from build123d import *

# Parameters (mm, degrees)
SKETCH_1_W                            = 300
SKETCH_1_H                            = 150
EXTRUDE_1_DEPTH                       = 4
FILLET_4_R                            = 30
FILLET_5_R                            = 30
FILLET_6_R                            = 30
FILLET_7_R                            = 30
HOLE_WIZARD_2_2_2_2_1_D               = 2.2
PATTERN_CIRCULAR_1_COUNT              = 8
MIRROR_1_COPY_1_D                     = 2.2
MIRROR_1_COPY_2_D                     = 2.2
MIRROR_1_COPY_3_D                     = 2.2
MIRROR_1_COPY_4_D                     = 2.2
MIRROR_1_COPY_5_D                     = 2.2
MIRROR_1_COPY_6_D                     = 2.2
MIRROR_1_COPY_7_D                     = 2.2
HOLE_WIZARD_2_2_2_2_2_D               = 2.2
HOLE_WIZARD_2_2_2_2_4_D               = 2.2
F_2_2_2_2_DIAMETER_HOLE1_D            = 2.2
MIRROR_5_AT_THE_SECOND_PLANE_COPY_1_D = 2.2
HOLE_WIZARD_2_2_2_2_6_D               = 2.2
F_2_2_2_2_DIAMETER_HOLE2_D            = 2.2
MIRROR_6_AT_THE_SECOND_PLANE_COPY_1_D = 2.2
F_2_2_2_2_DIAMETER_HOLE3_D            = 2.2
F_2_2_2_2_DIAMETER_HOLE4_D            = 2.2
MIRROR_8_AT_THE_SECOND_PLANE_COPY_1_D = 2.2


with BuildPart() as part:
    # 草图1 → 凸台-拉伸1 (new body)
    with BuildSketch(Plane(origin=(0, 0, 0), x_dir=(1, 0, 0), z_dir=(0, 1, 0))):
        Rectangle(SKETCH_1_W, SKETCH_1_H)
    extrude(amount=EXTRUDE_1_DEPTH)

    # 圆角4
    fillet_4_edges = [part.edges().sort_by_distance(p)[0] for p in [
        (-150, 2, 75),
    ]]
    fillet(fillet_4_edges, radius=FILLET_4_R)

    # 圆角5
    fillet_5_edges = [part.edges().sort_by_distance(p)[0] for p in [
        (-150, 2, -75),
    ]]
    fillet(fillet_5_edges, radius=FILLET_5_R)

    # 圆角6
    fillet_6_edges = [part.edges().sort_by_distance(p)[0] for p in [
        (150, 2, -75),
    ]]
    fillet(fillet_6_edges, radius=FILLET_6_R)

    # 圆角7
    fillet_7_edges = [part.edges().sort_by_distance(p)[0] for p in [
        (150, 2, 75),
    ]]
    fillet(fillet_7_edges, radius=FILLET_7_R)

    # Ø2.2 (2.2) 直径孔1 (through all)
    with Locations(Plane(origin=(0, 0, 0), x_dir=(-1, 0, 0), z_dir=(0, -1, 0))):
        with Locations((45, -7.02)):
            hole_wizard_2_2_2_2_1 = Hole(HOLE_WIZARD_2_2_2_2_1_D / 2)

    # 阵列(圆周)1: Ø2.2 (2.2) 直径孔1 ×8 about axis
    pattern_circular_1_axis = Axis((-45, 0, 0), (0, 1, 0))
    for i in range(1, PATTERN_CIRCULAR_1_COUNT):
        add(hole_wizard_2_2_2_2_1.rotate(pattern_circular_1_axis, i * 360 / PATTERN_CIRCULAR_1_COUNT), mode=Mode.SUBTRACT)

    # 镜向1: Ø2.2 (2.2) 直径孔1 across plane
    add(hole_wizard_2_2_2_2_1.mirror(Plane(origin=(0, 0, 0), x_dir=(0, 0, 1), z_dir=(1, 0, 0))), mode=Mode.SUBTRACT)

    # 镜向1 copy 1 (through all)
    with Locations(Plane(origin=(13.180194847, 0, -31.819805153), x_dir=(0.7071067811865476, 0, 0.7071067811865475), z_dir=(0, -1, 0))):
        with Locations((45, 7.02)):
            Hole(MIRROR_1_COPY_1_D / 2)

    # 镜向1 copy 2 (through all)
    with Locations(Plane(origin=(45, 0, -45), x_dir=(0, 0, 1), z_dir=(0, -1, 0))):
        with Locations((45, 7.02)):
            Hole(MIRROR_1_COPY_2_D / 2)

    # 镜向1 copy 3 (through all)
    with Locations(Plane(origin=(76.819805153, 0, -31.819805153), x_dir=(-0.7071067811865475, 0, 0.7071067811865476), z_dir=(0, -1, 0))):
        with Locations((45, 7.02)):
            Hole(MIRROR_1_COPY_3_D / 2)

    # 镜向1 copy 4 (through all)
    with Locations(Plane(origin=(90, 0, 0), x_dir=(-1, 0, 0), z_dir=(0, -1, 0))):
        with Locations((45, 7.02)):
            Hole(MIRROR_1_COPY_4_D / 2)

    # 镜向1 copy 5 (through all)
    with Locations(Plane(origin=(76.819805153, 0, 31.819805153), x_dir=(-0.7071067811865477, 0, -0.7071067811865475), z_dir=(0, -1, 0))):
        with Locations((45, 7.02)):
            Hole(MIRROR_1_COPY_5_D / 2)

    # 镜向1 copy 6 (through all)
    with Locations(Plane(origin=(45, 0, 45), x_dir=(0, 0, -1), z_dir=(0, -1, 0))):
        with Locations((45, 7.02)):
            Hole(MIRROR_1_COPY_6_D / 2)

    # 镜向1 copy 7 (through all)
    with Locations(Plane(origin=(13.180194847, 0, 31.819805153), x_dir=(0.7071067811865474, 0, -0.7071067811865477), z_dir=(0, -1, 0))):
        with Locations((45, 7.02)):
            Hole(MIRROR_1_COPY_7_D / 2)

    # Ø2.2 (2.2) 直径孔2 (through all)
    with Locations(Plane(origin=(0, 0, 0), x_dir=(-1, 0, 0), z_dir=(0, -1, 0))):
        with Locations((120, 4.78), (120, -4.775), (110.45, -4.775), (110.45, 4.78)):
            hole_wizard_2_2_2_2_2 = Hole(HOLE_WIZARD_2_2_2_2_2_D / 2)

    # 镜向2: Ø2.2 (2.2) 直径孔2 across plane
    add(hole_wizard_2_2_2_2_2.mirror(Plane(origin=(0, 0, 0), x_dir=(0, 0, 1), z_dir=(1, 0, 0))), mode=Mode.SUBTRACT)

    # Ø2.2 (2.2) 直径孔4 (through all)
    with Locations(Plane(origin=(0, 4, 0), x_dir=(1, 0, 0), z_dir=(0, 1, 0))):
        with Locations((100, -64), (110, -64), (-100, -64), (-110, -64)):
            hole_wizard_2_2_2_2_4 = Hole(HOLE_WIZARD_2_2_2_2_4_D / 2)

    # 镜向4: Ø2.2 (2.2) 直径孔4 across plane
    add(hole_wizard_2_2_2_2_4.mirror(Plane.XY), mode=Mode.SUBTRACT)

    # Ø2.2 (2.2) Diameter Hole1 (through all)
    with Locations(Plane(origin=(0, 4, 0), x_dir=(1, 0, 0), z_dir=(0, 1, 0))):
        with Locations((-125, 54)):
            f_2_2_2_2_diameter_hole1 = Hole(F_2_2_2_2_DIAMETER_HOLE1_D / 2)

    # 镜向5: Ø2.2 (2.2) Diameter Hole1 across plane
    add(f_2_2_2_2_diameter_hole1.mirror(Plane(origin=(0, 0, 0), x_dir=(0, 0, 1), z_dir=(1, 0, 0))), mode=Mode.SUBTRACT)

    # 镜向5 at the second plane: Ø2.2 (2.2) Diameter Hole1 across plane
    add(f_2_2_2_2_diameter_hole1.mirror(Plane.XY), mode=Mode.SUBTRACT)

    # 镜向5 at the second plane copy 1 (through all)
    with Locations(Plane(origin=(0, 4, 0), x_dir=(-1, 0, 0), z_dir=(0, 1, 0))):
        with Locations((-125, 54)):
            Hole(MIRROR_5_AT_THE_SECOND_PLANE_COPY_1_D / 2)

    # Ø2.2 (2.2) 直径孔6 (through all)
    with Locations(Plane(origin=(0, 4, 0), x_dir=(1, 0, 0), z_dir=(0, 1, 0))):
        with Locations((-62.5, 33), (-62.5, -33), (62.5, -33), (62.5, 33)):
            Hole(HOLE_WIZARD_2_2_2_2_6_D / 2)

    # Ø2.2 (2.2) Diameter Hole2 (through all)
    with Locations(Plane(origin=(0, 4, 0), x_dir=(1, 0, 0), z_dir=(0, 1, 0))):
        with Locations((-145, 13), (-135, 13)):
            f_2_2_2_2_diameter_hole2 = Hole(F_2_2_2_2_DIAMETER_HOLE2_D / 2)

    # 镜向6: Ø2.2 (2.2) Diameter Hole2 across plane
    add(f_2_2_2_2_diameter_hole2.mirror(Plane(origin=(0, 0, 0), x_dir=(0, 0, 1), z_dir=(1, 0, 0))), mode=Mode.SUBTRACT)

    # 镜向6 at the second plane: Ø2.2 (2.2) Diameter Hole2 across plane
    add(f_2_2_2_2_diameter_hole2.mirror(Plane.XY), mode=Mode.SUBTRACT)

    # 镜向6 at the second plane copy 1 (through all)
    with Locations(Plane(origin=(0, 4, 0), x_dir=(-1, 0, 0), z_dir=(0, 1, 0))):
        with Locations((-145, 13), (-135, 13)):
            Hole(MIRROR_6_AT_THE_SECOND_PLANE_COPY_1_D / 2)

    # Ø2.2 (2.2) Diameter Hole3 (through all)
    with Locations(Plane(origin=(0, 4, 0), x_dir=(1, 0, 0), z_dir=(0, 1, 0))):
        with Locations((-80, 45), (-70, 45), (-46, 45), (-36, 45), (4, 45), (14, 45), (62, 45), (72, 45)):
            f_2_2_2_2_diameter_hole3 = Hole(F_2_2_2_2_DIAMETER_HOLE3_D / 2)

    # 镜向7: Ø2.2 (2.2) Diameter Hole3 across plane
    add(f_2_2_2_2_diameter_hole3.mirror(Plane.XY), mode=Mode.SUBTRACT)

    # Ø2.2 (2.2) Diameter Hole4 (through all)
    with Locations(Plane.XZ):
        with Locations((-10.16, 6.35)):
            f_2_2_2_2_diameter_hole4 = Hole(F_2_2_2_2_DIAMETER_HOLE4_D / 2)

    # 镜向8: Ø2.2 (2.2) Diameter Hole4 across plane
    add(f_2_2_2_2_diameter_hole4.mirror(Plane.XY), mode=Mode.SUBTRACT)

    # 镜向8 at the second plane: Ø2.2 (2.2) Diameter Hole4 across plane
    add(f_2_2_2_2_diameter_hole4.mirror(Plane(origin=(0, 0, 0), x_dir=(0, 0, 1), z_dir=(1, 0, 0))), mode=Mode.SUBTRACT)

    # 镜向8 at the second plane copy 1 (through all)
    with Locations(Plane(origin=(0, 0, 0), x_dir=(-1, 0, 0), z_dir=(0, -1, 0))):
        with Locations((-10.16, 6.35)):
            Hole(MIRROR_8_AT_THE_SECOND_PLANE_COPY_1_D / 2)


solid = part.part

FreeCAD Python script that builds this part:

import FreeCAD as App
import Part
import Sketcher
Q = App.Units.Quantity


def edges_at(feature, points):
    """Names of the edges that pass closest to the given points."""
    edges = feature.Shape.Edges
    near = lambda p: min(range(len(edges)), key=lambda i: edges[i].distToShape(Part.Vertex(*p))[0])
    return sorted({f"Edge{near(p) + 1}" for p in points})

doc = App.newDocument("Part")
body = doc.addObject("PartDesign::Body", "Body")

# Sketch on XZ plane
sketch1 = body.newObject("Sketcher::SketchObject", "Sketch")
sketch1.AttachmentSupport = (doc.getObject("XZ_Plane"), [""])
sketch1.MapMode = "FlatFace"
sketch1.addGeometry([
    Part.LineSegment(App.Vector(-150, -75, 0), App.Vector(-150, 75, 0)),
    Part.LineSegment(App.Vector(-150, 75, 0), App.Vector(150, 75, 0)),
    Part.LineSegment(App.Vector(150, 75, 0), App.Vector(150, -75, 0)),
    Part.LineSegment(App.Vector(150, -75, 0), App.Vector(-150, -75, 0)),
], False)
sketch1.addConstraint([
    Sketcher.Constraint("Coincident", 0, 2, 1, 1),
    Sketcher.Constraint("Coincident", 1, 2, 2, 1),
    Sketcher.Constraint("Coincident", 2, 2, 3, 1),
    Sketcher.Constraint("Coincident", 3, 2, 0, 1),
    Sketcher.Constraint("Vertical", 0),
    Sketcher.Constraint("Horizontal", 1),
    Sketcher.Constraint("Vertical", 2),
    Sketcher.Constraint("Horizontal", 3),
    Sketcher.Constraint("Symmetric", 0, 2, 2, 2, -1, 1),
    Sketcher.Constraint("DistanceX", 1, 1, 1, 2, Q("300 mm")),
    Sketcher.Constraint("DistanceY", 0, 1, 0, 2, Q("150 mm")),
])
pad1 = body.newObject("PartDesign::Pad", "Pad")
pad1.Profile = sketch1
pad1.Length = 4
pad1.Reversed = True
doc.recompute()

fillet = body.newObject("PartDesign::Fillet", "Fillet")
fillet.Base = (pad1, edges_at(pad1, [(-150, 2, 75)]))
fillet.Radius = 30
doc.recompute()

fillet2 = body.newObject("PartDesign::Fillet", "Fillet001")
fillet2.Base = (fillet, edges_at(fillet, [(-150, 2, -75)]))
fillet2.Radius = 30
doc.recompute()

fillet3 = body.newObject("PartDesign::Fillet", "Fillet002")
fillet3.Base = (fillet2, edges_at(fillet2, [(150, 2, -75)]))
fillet3.Radius = 30
doc.recompute()

fillet4 = body.newObject("PartDesign::Fillet", "Fillet003")
fillet4.Base = (fillet3, edges_at(fillet3, [(150, 2, 75)]))
fillet4.Radius = 30

# Sketch on XZ plane
sketch2 = body.newObject("Sketcher::SketchObject", "Sketch001")
sketch2.AttachmentSupport = (doc.getObject("XZ_Plane"), [""])
sketch2.MapMode = "FlatFace"
sketch2.addGeometry(Part.Circle(App.Vector(-45, 7, 0), App.Vector(0, 0, 1), 1.1), False)
sketch2.addConstraint([
    Sketcher.Constraint("Diameter", 0, Q("2.2 mm")),
    Sketcher.Constraint("DistanceX", 0, 3, -1, 1, Q("45 mm")),
    Sketcher.Constraint("DistanceY", -1, 1, 0, 3, Q("7.02 mm")),
])
doc.recompute()
hole = body.newObject("PartDesign::Hole", "Hole")
hole.Profile = sketch2
hole.ThreadType = "None"
hole.Diameter = 2.2
hole.DepthType = "ThroughAll"
doc.recompute()

datumline = body.newObject("PartDesign::Line", "DatumLine")
datumline.Placement = App.Placement(App.Vector(-45, 0, 0), App.Rotation(App.Vector(0, 0, 1), App.Vector(0, 1, 0)))
polarpattern = body.newObject("PartDesign::PolarPattern", "PolarPattern")
polarpattern.Originals = [hole]
polarpattern.Axis = (datumline, [""])
polarpattern.Angle = 360
polarpattern.Occurrences = 8
body.Tip = polarpattern
doc.recompute()

mirrored = body.newObject("PartDesign::Mirrored", "Mirrored")
mirrored.Originals = [hole]
mirrored.MirrorPlane = (doc.getObject("YZ_Plane"), [""])
body.Tip = mirrored

# Sketch on XZ plane
sketch3 = body.newObject("Sketcher::SketchObject", "Sketch002")
sketch3.AttachmentSupport = (doc.getObject("XZ_Plane"), [""])
sketch3.MapMode = "FlatFace"
sketch3.addGeometry(Part.Circle(App.Vector(40, 5, 0), App.Vector(0, 0, 1), 1.1), False)
sketch3.addConstraint([
    Sketcher.Constraint("Diameter", 0, Q("2.2 mm")),
    Sketcher.Constraint("DistanceX", -1, 1, 0, 3, Q("40.03611 mm")),
    Sketcher.Constraint("DistanceY", -1, 1, 0, 3, Q("4.96389 mm")),
])
doc.recompute()
hole2 = body.newObject("PartDesign::Hole", "Hole001")
hole2.Profile = sketch3
hole2.ThreadType = "None"
hole2.Diameter = 2.2
hole2.DepthType = "ThroughAll"

# Sketch on XZ plane
sketch4 = body.newObject("Sketcher::SketchObject", "Sketch003")
sketch4.AttachmentSupport = (doc.getObject("XZ_Plane"), [""])
sketch4.MapMode = "FlatFace"
sketch4.addGeometry(Part.Circle(App.Vector(38, 0, 0), App.Vector(0, 0, 1), 1.1), False)
sketch4.addConstraint([
    Sketcher.Constraint("PointOnObject", 0, 3, -1),
    Sketcher.Constraint("Diameter", 0, Q("2.2 mm")),
    Sketcher.Constraint("DistanceX", -1, 1, 0, 3, Q("37.98 mm")),
])
doc.recompute()
hole3 = body.newObject("PartDesign::Hole", "Hole002")
hole3.Profile = sketch4
hole3.ThreadType = "None"
hole3.Diameter = 2.2
hole3.DepthType = "ThroughAll"

# Sketch on XZ plane
sketch5 = body.newObject("Sketcher::SketchObject", "Sketch004")
sketch5.AttachmentSupport = (doc.getObject("XZ_Plane"), [""])
sketch5.MapMode = "FlatFace"
sketch5.addGeometry(Part.Circle(App.Vector(40, -5, 0), App.Vector(0, 0, 1), 1.1), False)
sketch5.addConstraint([
    Sketcher.Constraint("Diameter", 0, Q("2.2 mm")),
    Sketcher.Constraint("DistanceX", -1, 1, 0, 3, Q("40.03611 mm")),
    Sketcher.Constraint("DistanceY", 0, 3, -1, 1, Q("4.96389 mm")),
])
doc.recompute()
hole4 = body.newObject("PartDesign::Hole", "Hole003")
hole4.Profile = sketch5
hole4.ThreadType = "None"
hole4.Diameter = 2.2
hole4.DepthType = "ThroughAll"

# Sketch on XZ plane
sketch6 = body.newObject("Sketcher::SketchObject", "Sketch005")
sketch6.AttachmentSupport = (doc.getObject("XZ_Plane"), [""])
sketch6.MapMode = "FlatFace"
sketch6.addGeometry(Part.Circle(App.Vector(45, -7, 0), App.Vector(0, 0, 1), 1.1), False)
sketch6.addConstraint([
    Sketcher.Constraint("Diameter", 0, Q("2.2 mm")),
    Sketcher.Constraint("DistanceX", -1, 1, 0, 3, Q("45 mm")),
    Sketcher.Constraint("DistanceY", 0, 3, -1, 1, Q("7.02 mm")),
])
doc.recompute()
hole5 = body.newObject("PartDesign::Hole", "Hole004")
hole5.Profile = sketch6
hole5.ThreadType = "None"
hole5.Diameter = 2.2
hole5.DepthType = "ThroughAll"

# Sketch on XZ plane
sketch7 = body.newObject("Sketcher::SketchObject", "Sketch006")
sketch7.AttachmentSupport = (doc.getObject("XZ_Plane"), [""])
sketch7.MapMode = "FlatFace"
sketch7.addGeometry(Part.Circle(App.Vector(50, -5, 0), App.Vector(0, 0, 1), 1.1), False)
sketch7.addConstraint([
    Sketcher.Constraint("Diameter", 0, Q("2.2 mm")),
    Sketcher.Constraint("DistanceX", -1, 1, 0, 3, Q("49.96389 mm")),
    Sketcher.Constraint("DistanceY", 0, 3, -1, 1, Q("4.96389 mm")),
])
doc.recompute()
hole6 = body.newObject("PartDesign::Hole", "Hole005")
hole6.Profile = sketch7
hole6.ThreadType = "None"
hole6.Diameter = 2.2
hole6.DepthType = "ThroughAll"

# Sketch on XZ plane
sketch8 = body.newObject("Sketcher::SketchObject", "Sketch007")
sketch8.AttachmentSupport = (doc.getObject("XZ_Plane"), [""])
sketch8.MapMode = "FlatFace"
sketch8.addGeometry(Part.Circle(App.Vector(52, 0, 0), App.Vector(0, 0, 1), 1.1), False)
sketch8.addConstraint([
    Sketcher.Constraint("PointOnObject", 0, 3, -1),
    Sketcher.Constraint("Diameter", 0, Q("2.2 mm")),
    Sketcher.Constraint("DistanceX", -1, 1, 0, 3, Q("52.02 mm")),
])
doc.recompute()
hole7 = body.newObject("PartDesign::Hole", "Hole006")
hole7.Profile = sketch8
hole7.ThreadType = "None"
hole7.Diameter = 2.2
hole7.DepthType = "ThroughAll"

# Sketch on XZ plane
sketch9 = body.newObject("Sketcher::SketchObject", "Sketch008")
sketch9.AttachmentSupport = (doc.getObject("XZ_Plane"), [""])
sketch9.MapMode = "FlatFace"
sketch9.addGeometry(Part.Circle(App.Vector(50, 5, 0), App.Vector(0, 0, 1), 1.1), False)
sketch9.addConstraint([
    Sketcher.Constraint("Diameter", 0, Q("2.2 mm")),
    Sketcher.Constraint("DistanceX", -1, 1, 0, 3, Q("49.96389 mm")),
    Sketcher.Constraint("DistanceY", -1, 1, 0, 3, Q("4.96389 mm")),
])
doc.recompute()
hole8 = body.newObject("PartDesign::Hole", "Hole007")
hole8.Profile = sketch9
hole8.ThreadType = "None"
hole8.Diameter = 2.2
hole8.DepthType = "ThroughAll"

# Sketch on XZ plane
sketch10 = body.newObject("Sketcher::SketchObject", "Sketch009")
sketch10.AttachmentSupport = (doc.getObject("XZ_Plane"), [""])
sketch10.MapMode = "FlatFace"
sketch10.addGeometry([
    Part.Circle(App.Vector(-120, -4.8, 0), App.Vector(0, 0, 1), 1.1),
    Part.Circle(App.Vector(-120, 4.8, 0), App.Vector(0, 0, 1), 1.1),
    Part.Circle(App.Vector(-110.5, 4.8, 0), App.Vector(0, 0, 1), 1.1),
    Part.Circle(App.Vector(-110.5, -4.8, 0), App.Vector(0, 0, 1), 1.1),
], False)
sketch10.addConstraint([
    Sketcher.Constraint("Equal", 0, 1),
    Sketcher.Constraint("Equal", 1, 2),
    Sketcher.Constraint("Equal", 2, 3),
    Sketcher.Constraint("Horizontal", 1, 3, 2, 3),
    Sketcher.Constraint("Horizontal", 0, 3, 3, 3),
    Sketcher.Constraint("Vertical", 0, 3, 1, 3),
    Sketcher.Constraint("Vertical", 2, 3, 3, 3),
    Sketcher.Constraint("Diameter", 0, Q("2.2 mm")),
    Sketcher.Constraint("DistanceX", 0, 3, -1, 1, Q("120 mm")),
    Sketcher.Constraint("DistanceY", 0, 3, -1, 1, Q("4.78 mm")),
    Sketcher.Constraint("DistanceX", 2, 3, -1, 1, Q("110.45 mm")),
    Sketcher.Constraint("DistanceY", -1, 1, 1, 3, Q("4.775 mm")),
])
doc.recompute()
hole9 = body.newObject("PartDesign::Hole", "Hole008")
hole9.Profile = sketch10
hole9.ThreadType = "None"
hole9.Diameter = 2.2
hole9.DepthType = "ThroughAll"
doc.recompute()

mirrored2 = body.newObject("PartDesign::Mirrored", "Mirrored001")
mirrored2.Originals = [hole9]
mirrored2.MirrorPlane = (doc.getObject("YZ_Plane"), [""])
body.Tip = mirrored2

# Sketch on XZ plane
sketch11 = body.newObject("Sketcher::SketchObject", "Sketch010")
sketch11.AttachmentSupport = (doc.getObject("XZ_Plane"), [""])
sketch11.MapMode = "FlatFace"
sketch11.AttachmentOffset = App.Placement(App.Vector(0, 0, -4), App.Rotation())
sketch11.addGeometry([
    Part.Circle(App.Vector(100, 64, 0), App.Vector(0, 0, 1), 1.1),
    Part.Circle(App.Vector(110, 64, 0), App.Vector(0, 0, 1), 1.1),
    Part.Circle(App.Vector(-100, 64, 0), App.Vector(0, 0, 1), 1.1),
    Part.Circle(App.Vector(-110, 64, 0), App.Vector(0, 0, 1), 1.1),
], False)
sketch11.addConstraint([
    Sketcher.Constraint("Equal", 0, 1),
    Sketcher.Constraint("Equal", 1, 2),
    Sketcher.Constraint("Equal", 2, 3),
    Sketcher.Constraint("Symmetric", 0, 3, 2, 3, -2),
    Sketcher.Constraint("Symmetric", 1, 3, 3, 3, -2),
    Sketcher.Constraint("Horizontal", 0, 3, 1, 3),
    Sketcher.Constraint("Diameter", 0, Q("2.2 mm")),
    Sketcher.Constraint("DistanceX", -1, 1, 0, 3, Q("100 mm")),
    Sketcher.Constraint("DistanceY", -1, 1, 0, 3, Q("64 mm")),
    Sketcher.Constraint("DistanceX", -1, 1, 1, 3, Q("110 mm")),
])
doc.recompute()
hole10 = body.newObject("PartDesign::Hole", "Hole009")
hole10.Profile = sketch11
hole10.ThreadType = "None"
hole10.Diameter = 2.2
hole10.DepthType = "ThroughAll"
hole10.Reversed = True
doc.recompute()

mirrored3 = body.newObject("PartDesign::Mirrored", "Mirrored002")
mirrored3.Originals = [hole10]
mirrored3.MirrorPlane = (doc.getObject("XY_Plane"), [""])
body.Tip = mirrored3

# Sketch on XZ plane
sketch12 = body.newObject("Sketcher::SketchObject", "Sketch011")
sketch12.AttachmentSupport = (doc.getObject("XZ_Plane"), [""])
sketch12.MapMode = "FlatFace"
sketch12.AttachmentOffset = App.Placement(App.Vector(0, 0, -4), App.Rotation())
sketch12.addGeometry(Part.Circle(App.Vector(-125, -54, 0), App.Vector(0, 0, 1), 1.1), False)
sketch12.addConstraint([
    Sketcher.Constraint("Diameter", 0, Q("2.2 mm")),
    Sketcher.Constraint("DistanceX", 0, 3, -1, 1, Q("125 mm")),
    Sketcher.Constraint("DistanceY", 0, 3, -1, 1, Q("54 mm")),
])
doc.recompute()
hole11 = body.newObject("PartDesign::Hole", "Hole010")
hole11.Profile = sketch12
hole11.ThreadType = "None"
hole11.Diameter = 2.2
hole11.DepthType = "ThroughAll"
hole11.Reversed = True
doc.recompute()

mirrored4 = body.newObject("PartDesign::Mirrored", "Mirrored003")
mirrored4.Originals = [hole11]
mirrored4.MirrorPlane = (doc.getObject("YZ_Plane"), [""])
body.Tip = mirrored4
doc.recompute()

mirrored5 = body.newObject("PartDesign::Mirrored", "Mirrored004")
mirrored5.Originals = [hole11]
mirrored5.MirrorPlane = (doc.getObject("XY_Plane"), [""])
body.Tip = mirrored5

# Sketch on XZ plane
sketch13 = body.newObject("Sketcher::SketchObject", "Sketch012")
sketch13.AttachmentSupport = (doc.getObject("XZ_Plane"), [""])
sketch13.MapMode = "FlatFace"
sketch13.AttachmentOffset = App.Placement(App.Vector(0, 0, -4), App.Rotation())
sketch13.addGeometry(Part.Circle(App.Vector(125, 54, 0), App.Vector(0, 0, 1), 1.1), False)
sketch13.addConstraint([
    Sketcher.Constraint("Diameter", 0, Q("2.2 mm")),
    Sketcher.Constraint("DistanceX", -1, 1, 0, 3, Q("125 mm")),
    Sketcher.Constraint("DistanceY", -1, 1, 0, 3, Q("54 mm")),
])
doc.recompute()
hole12 = body.newObject("PartDesign::Hole", "Hole011")
hole12.Profile = sketch13
hole12.ThreadType = "None"
hole12.Diameter = 2.2
hole12.DepthType = "ThroughAll"
hole12.Reversed = True

# Sketch on XZ plane
sketch14 = body.newObject("Sketcher::SketchObject", "Sketch013")
sketch14.AttachmentSupport = (doc.getObject("XZ_Plane"), [""])
sketch14.MapMode = "FlatFace"
sketch14.AttachmentOffset = App.Placement(App.Vector(0, 0, -4), App.Rotation())
sketch14.addGeometry([
    Part.Circle(App.Vector(-62.5, -33, 0), App.Vector(0, 0, 1), 1.1),
    Part.Circle(App.Vector(-62.5, 33, 0), App.Vector(0, 0, 1), 1.1),
    Part.Circle(App.Vector(62.5, 33, 0), App.Vector(0, 0, 1), 1.1),
    Part.Circle(App.Vector(62.5, -33, 0), App.Vector(0, 0, 1), 1.1),
], False)
sketch14.addConstraint([
    Sketcher.Constraint("Equal", 0, 1),
    Sketcher.Constraint("Equal", 1, 2),
    Sketcher.Constraint("Equal", 2, 3),
    Sketcher.Constraint("Symmetric", 0, 3, 2, 3, -1, 1),
    Sketcher.Constraint("Symmetric", 1, 3, 3, 3, -1, 1),
    Sketcher.Constraint("Symmetric", 1, 3, 2, 3, -2),
    Sketcher.Constraint("Diameter", 0, Q("2.2 mm")),
    Sketcher.Constraint("DistanceY", 0, 3, -1, 1, Q("33 mm")),
    Sketcher.Constraint("DistanceX", 1, 3, 2, 3, Q("125 mm")),
])
doc.recompute()
hole13 = body.newObject("PartDesign::Hole", "Hole012")
hole13.Profile = sketch14
hole13.ThreadType = "None"
hole13.Diameter = 2.2
hole13.DepthType = "ThroughAll"
hole13.Reversed = True

# Sketch on XZ plane
sketch15 = body.newObject("Sketcher::SketchObject", "Sketch014")
sketch15.AttachmentSupport = (doc.getObject("XZ_Plane"), [""])
sketch15.MapMode = "FlatFace"
sketch15.AttachmentOffset = App.Placement(App.Vector(0, 0, -4), App.Rotation())
sketch15.addGeometry([
    Part.Circle(App.Vector(-145, -13, 0), App.Vector(0, 0, 1), 1.1),
    Part.Circle(App.Vector(-135, -13, 0), App.Vector(0, 0, 1), 1.1),
], False)
sketch15.addConstraint([
    Sketcher.Constraint("Equal", 0, 1),
    Sketcher.Constraint("Horizontal", 0, 3, 1, 3),
    Sketcher.Constraint("Diameter", 0, Q("2.2 mm")),
    Sketcher.Constraint("DistanceX", 0, 3, -1, 1, Q("145 mm")),
    Sketcher.Constraint("DistanceY", 0, 3, -1, 1, Q("13 mm")),
    Sketcher.Constraint("DistanceX", 1, 3, -1, 1, Q("135 mm")),
])
doc.recompute()
hole14 = body.newObject("PartDesign::Hole", "Hole013")
hole14.Profile = sketch15
hole14.ThreadType = "None"
hole14.Diameter = 2.2
hole14.DepthType = "ThroughAll"
hole14.Reversed = True
doc.recompute()

mirrored6 = body.newObject("PartDesign::Mirrored", "Mirrored005")
mirrored6.Originals = [hole14]
mirrored6.MirrorPlane = (doc.getObject("YZ_Plane"), [""])
body.Tip = mirrored6
doc.recompute()

mirrored7 = body.newObject("PartDesign::Mirrored", "Mirrored006")
mirrored7.Originals = [hole14]
mirrored7.MirrorPlane = (doc.getObject("XY_Plane"), [""])
body.Tip = mirrored7

# Sketch on XZ plane
sketch16 = body.newObject("Sketcher::SketchObject", "Sketch015")
sketch16.AttachmentSupport = (doc.getObject("XZ_Plane"), [""])
sketch16.MapMode = "FlatFace"
sketch16.AttachmentOffset = App.Placement(App.Vector(0, 0, -4), App.Rotation())
sketch16.addGeometry([
    Part.Circle(App.Vector(145, 13, 0), App.Vector(0, 0, 1), 1.1),
    Part.Circle(App.Vector(135, 13, 0), App.Vector(0, 0, 1), 1.1),
], False)
sketch16.addConstraint([
    Sketcher.Constraint("Equal", 0, 1),
    Sketcher.Constraint("Horizontal", 0, 3, 1, 3),
    Sketcher.Constraint("Diameter", 0, Q("2.2 mm")),
    Sketcher.Constraint("DistanceX", -1, 1, 0, 3, Q("145 mm")),
    Sketcher.Constraint("DistanceY", -1, 1, 0, 3, Q("13 mm")),
    Sketcher.Constraint("DistanceX", -1, 1, 1, 3, Q("135 mm")),
])
doc.recompute()
hole15 = body.newObject("PartDesign::Hole", "Hole014")
hole15.Profile = sketch16
hole15.ThreadType = "None"
hole15.Diameter = 2.2
hole15.DepthType = "ThroughAll"
hole15.Reversed = True

# Sketch on XZ plane
sketch17 = body.newObject("Sketcher::SketchObject", "Sketch016")
sketch17.AttachmentSupport = (doc.getObject("XZ_Plane"), [""])
sketch17.MapMode = "FlatFace"
sketch17.AttachmentOffset = App.Placement(App.Vector(0, 0, -4), App.Rotation())
sketch17.addGeometry([
    Part.Circle(App.Vector(-80, -45, 0), App.Vector(0, 0, 1), 1.1),  # 0
    Part.Circle(App.Vector(-70, -45, 0), App.Vector(0, 0, 1), 1.1),  # 1
    Part.Circle(App.Vector(-46, -45, 0), App.Vector(0, 0, 1), 1.1),  # 2
    Part.Circle(App.Vector(-36, -45, 0), App.Vector(0, 0, 1), 1.1),  # 3
    Part.Circle(App.Vector(4, -45, 0), App.Vector(0, 0, 1), 1.1),  # 4
    Part.Circle(App.Vector(14, -45, 0), App.Vector(0, 0, 1), 1.1),  # 5
    Part.Circle(App.Vector(62, -45, 0), App.Vector(0, 0, 1), 1.1),  # 6
    Part.Circle(App.Vector(72, -45, 0), App.Vector(0, 0, 1), 1.1),  # 7
], False)
sketch17.addConstraint([
    Sketcher.Constraint("Equal", 0, 1),
    Sketcher.Constraint("Equal", 1, 2),
    Sketcher.Constraint("Equal", 2, 3),
    Sketcher.Constraint("Equal", 3, 4),
    Sketcher.Constraint("Equal", 4, 5),
    Sketcher.Constraint("Equal", 5, 6),
    Sketcher.Constraint("Equal", 6, 7),
    Sketcher.Constraint("Horizontal", 0, 3, 1, 3),
    Sketcher.Constraint("Horizontal", 1, 3, 2, 3),
    Sketcher.Constraint("Horizontal", 2, 3, 3, 3),
    Sketcher.Constraint("Horizontal", 3, 3, 4, 3),
    Sketcher.Constraint("Horizontal", 4, 3, 5, 3),
    Sketcher.Constraint("Horizontal", 5, 3, 6, 3),
    Sketcher.Constraint("Horizontal", 6, 3, 7, 3),
    Sketcher.Constraint("Diameter", 0, Q("2.2 mm")),
    Sketcher.Constraint("DistanceX", 0, 3, -1, 1, Q("80 mm")),
    Sketcher.Constraint("DistanceY", 0, 3, -1, 1, Q("45 mm")),
    Sketcher.Constraint("DistanceX", 1, 3, -1, 1, Q("70 mm")),
    Sketcher.Constraint("DistanceX", 2, 3, -1, 1, Q("46 mm")),
    Sketcher.Constraint("DistanceX", 3, 3, -1, 1, Q("36 mm")),
    Sketcher.Constraint("DistanceX", -1, 1, 4, 3, Q("4 mm")),
    Sketcher.Constraint("DistanceX", -1, 1, 5, 3, Q("14 mm")),
    Sketcher.Constraint("DistanceX", -1, 1, 6, 3, Q("62 mm")),
    Sketcher.Constraint("DistanceX", -1, 1, 7, 3, Q("72 mm")),
])
doc.recompute()
hole16 = body.newObject("PartDesign::Hole", "Hole015")
hole16.Profile = sketch17
hole16.ThreadType = "None"
hole16.Diameter = 2.2
hole16.DepthType = "ThroughAll"
hole16.Reversed = True
doc.recompute()

mirrored8 = body.newObject("PartDesign::Mirrored", "Mirrored007")
mirrored8.Originals = [hole16]
mirrored8.MirrorPlane = (doc.getObject("XY_Plane"), [""])
body.Tip = mirrored8

# Sketch on XZ plane
sketch18 = body.newObject("Sketcher::SketchObject", "Sketch017")
sketch18.AttachmentSupport = (doc.getObject("XZ_Plane"), [""])
sketch18.MapMode = "FlatFace"
sketch18.addGeometry(Part.Circle(App.Vector(-10.2, 6.3, 0), App.Vector(0, 0, 1), 1.1), False)
sketch18.addConstraint([
    Sketcher.Constraint("Diameter", 0, Q("2.2 mm")),
    Sketcher.Constraint("DistanceX", 0, 3, -1, 1, Q("10.16 mm")),
    Sketcher.Constraint("DistanceY", -1, 1, 0, 3, Q("6.35 mm")),
])
doc.recompute()
hole17 = body.newObject("PartDesign::Hole", "Hole016")
hole17.Profile = sketch18
hole17.ThreadType = "None"
hole17.Diameter = 2.2
hole17.DepthType = "ThroughAll"
doc.recompute()

mirrored9 = body.newObject("PartDesign::Mirrored", "Mirrored008")
mirrored9.Originals = [hole17]
mirrored9.MirrorPlane = (doc.getObject("XY_Plane"), [""])
body.Tip = mirrored9
doc.recompute()

mirrored10 = body.newObject("PartDesign::Mirrored", "Mirrored009")
mirrored10.Originals = [hole17]
mirrored10.MirrorPlane = (doc.getObject("YZ_Plane"), [""])
body.Tip = mirrored10

# Sketch on XZ plane
sketch19 = body.newObject("Sketcher::SketchObject", "Sketch018")
sketch19.AttachmentSupport = (doc.getObject("XZ_Plane"), [""])
sketch19.MapMode = "FlatFace"
sketch19.addGeometry(Part.Circle(App.Vector(10.2, -6.3, 0), App.Vector(0, 0, 1), 1.1), False)
sketch19.addConstraint([
    Sketcher.Constraint("Diameter", 0, Q("2.2 mm")),
    Sketcher.Constraint("DistanceX", -1, 1, 0, 3, Q("10.16 mm")),
    Sketcher.Constraint("DistanceY", 0, 3, -1, 1, Q("6.35 mm")),
])
doc.recompute()
hole18 = body.newObject("PartDesign::Hole", "Hole017")
hole18.Profile = sketch19
hole18.ThreadType = "None"
hole18.Diameter = 2.2
hole18.DepthType = "ThroughAll"

doc.recompute()
